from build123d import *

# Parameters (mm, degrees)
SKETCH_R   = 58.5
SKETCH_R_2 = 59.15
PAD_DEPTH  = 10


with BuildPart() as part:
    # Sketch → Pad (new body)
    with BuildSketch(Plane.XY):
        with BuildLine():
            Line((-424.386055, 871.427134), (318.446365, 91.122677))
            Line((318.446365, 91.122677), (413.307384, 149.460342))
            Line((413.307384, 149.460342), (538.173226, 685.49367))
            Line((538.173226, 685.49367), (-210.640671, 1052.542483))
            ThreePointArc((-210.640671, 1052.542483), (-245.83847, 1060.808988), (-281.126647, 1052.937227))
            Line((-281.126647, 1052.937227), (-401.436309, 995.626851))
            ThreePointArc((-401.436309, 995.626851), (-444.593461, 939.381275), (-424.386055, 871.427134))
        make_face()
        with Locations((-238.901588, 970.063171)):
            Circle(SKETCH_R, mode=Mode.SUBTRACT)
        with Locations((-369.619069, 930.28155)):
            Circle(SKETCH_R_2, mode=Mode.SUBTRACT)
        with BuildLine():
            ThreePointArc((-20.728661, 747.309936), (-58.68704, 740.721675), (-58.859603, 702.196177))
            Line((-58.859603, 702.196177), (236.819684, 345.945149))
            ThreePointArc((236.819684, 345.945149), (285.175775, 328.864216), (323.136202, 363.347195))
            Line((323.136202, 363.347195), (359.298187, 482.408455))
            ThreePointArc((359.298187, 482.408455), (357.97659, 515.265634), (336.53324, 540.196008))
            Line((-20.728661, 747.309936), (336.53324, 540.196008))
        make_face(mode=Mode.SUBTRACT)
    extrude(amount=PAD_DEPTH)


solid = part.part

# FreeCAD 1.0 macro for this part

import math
import FreeCAD as App
import Part
import Sketcher
Q = App.Units.Quantity

doc = App.newDocument("Part")
body = doc.addObject("PartDesign::Body", "Body")

# Sketch on XY plane
sketch1 = body.newObject("Sketcher::SketchObject", "Sketch")
sketch1.AttachmentSupport = (doc.getObject("XY_Plane"), [""])
sketch1.MapMode = "FlatFace"
sketch1.addGeometry([
    Part.LineSegment(App.Vector(-424.386055, 871.427134, 0), App.Vector(318.446365, 91.122677, 0)),  # 0
    Part.LineSegment(App.Vector(318.446365, 91.122677, 0), App.Vector(413.307384, 149.460342, 0)),  # 1
    Part.LineSegment(App.Vector(413.307384, 149.460342, 0), App.Vector(538.173226, 685.49367, 0)),  # 2
    Part.LineSegment(App.Vector(538.173226, 685.49367, 0), App.Vector(-210.640671, 1052.542483, 0)),  # 3
    Part.ArcOfCircle(Part.Circle(App.Vector(-246.292088, 979.810254, 0), App.Vector(0, 0, 1), 81.000004), math.radians(63.887127), math.radians(115.471131)),  # 4
    Part.LineSegment(App.Vector(-281.126647, 1052.937227, 0), App.Vector(-401.436309, 995.626851, 0)),  # 5
    Part.ArcOfCircle(Part.Circle(App.Vector(-367.89192, 925.208289, 0), App.Vector(0, 0, 1), 77.999999), math.radians(115.471131), math.radians(223.5907)),  # 6
    Part.ArcOfCircle(Part.Circle(App.Vector(-35.774877, 721.355912, 0), App.Vector(0, 0, 1), 30), math.radians(59.898026), math.radians(219.691809)),  # 7
    Part.LineSegment(App.Vector(-20.728661, 747.309936, 0), App.Vector(336.53324, 540.196008, 0)),  # 8
    Part.ArcOfCircle(Part.Circle(App.Vector(311.456212, 496.939301, 0), App.Vector(0, 0, 1), 50), math.radians(-16.894894), math.radians(59.898025)),  # 9
    Part.LineSegment(App.Vector(359.298187, 482.408455, 0), App.Vector(323.136202, 363.347195, 0)),  # 10
    Part.ArcOfCircle(Part.Circle(App.Vector(275.294227, 377.878041, 0), App.Vector(0, 0, 1), 50.000001), math.radians(-140.308189), math.radians(-16.894894)),  # 11
    Part.LineSegment(App.Vector(236.819684, 345.945149, 0), App.Vector(-58.859603, 702.196177, 0)),  # 12
    Part.Circle(App.Vector(-369.619069, 930.28155, 0), App.Vector(0, 0, 1), 59.15),  # 13
    Part.Circle(App.Vector(-238.901588, 970.063171, 0), App.Vector(0, 0, 1), 58.5),  # 14
], False)
sketch1.addConstraint([
    Sketcher.Constraint("Coincident", 0, 2, 1, 1),
    Sketcher.Constraint("Coincident", 1, 2, 2, 1),
    Sketcher.Constraint("Coincident", 2, 2, 3, 1),
    Sketcher.Constraint("Tangent", 3, 2, 4, 1),
    Sketcher.Constraint("Tangent", 4, 2, 5, 1),
    Sketcher.Constraint("Tangent", 5, 2, 6, 1),
    Sketcher.Constraint("Tangent", 6, 2, 0, 1),
    Sketcher.Constraint("Tangent", 7, 1, 8, 1),
    Sketcher.Constraint("Tangent", 8, 2, 9, 2),
    Sketcher.Constraint("Tangent", 9, 1, 10, 1),
    Sketcher.Constraint("Tangent", 10, 2, 11, 2),
    Sketcher.Constraint("Tangent", 11, 1, 12, 1),
    Sketcher.Constraint("Tangent", 12, 2, 7, 2),
    Sketcher.Constraint("Equal", 9, 11),
    Sketcher.Constraint("Diameter", 14, Q("117 mm")),
    Sketcher.Constraint("Radius", 6, Q("77.999999 mm")),
    Sketcher.Constraint("Radius", 7, Q("30 mm")),
    Sketcher.Constraint("Radius", 9, Q("50 mm")),
    Sketcher.Constraint("Diameter", 13, Q("118.3 mm")),
    Sketcher.Constraint("Radius", 4, Q("81.000004 mm")),
    Sketcher.Constraint("DistanceX", 11, 3, 2, 2, Q("262.878999 mm")),
    Sketcher.Constraint("Distance", 0, Q("1077.3463 mm")),
    Sketcher.Constraint("Distance", 1, Q("111.363801 mm")),
    Sketcher.Constraint("Distance", 2, Q("550.384599 mm")),
    Sketcher.Constraint("Distance", 3, Q("833.9347 mm")),
    Sketcher.Constraint("Distance", 5, Q("133.2625 mm")),
    Sketcher.Constraint("Distance", 8, Q("412.9555 mm")),
    Sketcher.Constraint("Distance", 10, Q("124.4318 mm")),
    Sketcher.Constraint("Distance", 12, Q("462.9698 mm")),
    Sketcher.Constraint("DistanceY", -1, 1, 9, 3, Q("496.939301 mm")),
    Sketcher.Constraint("DistanceX", 4, 3, 9, 3, Q("557.7483 mm")),
    Sketcher.Constraint("DistanceX", 4, 3, 14, 3, Q("7.3905 mm")),
    Sketcher.Constraint("DistanceY", 1, 2, 11, 3, Q("228.417699 mm")),
    Sketcher.Constraint("DistanceX", 13, 3, 3, 2, Q("158.978398 mm")),
    Sketcher.Constraint("DistanceY", 13, 3, 5, 2, Q("65.345301 mm")),
    Sketcher.Constraint("DistanceX", 7, 1, 8, 2, Q("357.261901 mm")),
    Sketcher.Constraint("DistanceX", 4, 3, -1, 1, Q("246.292088 mm")),
    Sketcher.Constraint("DistanceX", 6, 3, -1, 1, Q("367.89192 mm")),
    Sketcher.Constraint("DistanceY", -1, 1, 6, 3, Q("925.208289 mm")),
    Sketcher.Constraint("DistanceY", -1, 1, 14, 3, Q("970.063171 mm")),
])
pad1 = body.newObject("PartDesign::Pad", "Pad")
pad1.Profile = sketch1
pad1.Length = 10

doc.recompute()
